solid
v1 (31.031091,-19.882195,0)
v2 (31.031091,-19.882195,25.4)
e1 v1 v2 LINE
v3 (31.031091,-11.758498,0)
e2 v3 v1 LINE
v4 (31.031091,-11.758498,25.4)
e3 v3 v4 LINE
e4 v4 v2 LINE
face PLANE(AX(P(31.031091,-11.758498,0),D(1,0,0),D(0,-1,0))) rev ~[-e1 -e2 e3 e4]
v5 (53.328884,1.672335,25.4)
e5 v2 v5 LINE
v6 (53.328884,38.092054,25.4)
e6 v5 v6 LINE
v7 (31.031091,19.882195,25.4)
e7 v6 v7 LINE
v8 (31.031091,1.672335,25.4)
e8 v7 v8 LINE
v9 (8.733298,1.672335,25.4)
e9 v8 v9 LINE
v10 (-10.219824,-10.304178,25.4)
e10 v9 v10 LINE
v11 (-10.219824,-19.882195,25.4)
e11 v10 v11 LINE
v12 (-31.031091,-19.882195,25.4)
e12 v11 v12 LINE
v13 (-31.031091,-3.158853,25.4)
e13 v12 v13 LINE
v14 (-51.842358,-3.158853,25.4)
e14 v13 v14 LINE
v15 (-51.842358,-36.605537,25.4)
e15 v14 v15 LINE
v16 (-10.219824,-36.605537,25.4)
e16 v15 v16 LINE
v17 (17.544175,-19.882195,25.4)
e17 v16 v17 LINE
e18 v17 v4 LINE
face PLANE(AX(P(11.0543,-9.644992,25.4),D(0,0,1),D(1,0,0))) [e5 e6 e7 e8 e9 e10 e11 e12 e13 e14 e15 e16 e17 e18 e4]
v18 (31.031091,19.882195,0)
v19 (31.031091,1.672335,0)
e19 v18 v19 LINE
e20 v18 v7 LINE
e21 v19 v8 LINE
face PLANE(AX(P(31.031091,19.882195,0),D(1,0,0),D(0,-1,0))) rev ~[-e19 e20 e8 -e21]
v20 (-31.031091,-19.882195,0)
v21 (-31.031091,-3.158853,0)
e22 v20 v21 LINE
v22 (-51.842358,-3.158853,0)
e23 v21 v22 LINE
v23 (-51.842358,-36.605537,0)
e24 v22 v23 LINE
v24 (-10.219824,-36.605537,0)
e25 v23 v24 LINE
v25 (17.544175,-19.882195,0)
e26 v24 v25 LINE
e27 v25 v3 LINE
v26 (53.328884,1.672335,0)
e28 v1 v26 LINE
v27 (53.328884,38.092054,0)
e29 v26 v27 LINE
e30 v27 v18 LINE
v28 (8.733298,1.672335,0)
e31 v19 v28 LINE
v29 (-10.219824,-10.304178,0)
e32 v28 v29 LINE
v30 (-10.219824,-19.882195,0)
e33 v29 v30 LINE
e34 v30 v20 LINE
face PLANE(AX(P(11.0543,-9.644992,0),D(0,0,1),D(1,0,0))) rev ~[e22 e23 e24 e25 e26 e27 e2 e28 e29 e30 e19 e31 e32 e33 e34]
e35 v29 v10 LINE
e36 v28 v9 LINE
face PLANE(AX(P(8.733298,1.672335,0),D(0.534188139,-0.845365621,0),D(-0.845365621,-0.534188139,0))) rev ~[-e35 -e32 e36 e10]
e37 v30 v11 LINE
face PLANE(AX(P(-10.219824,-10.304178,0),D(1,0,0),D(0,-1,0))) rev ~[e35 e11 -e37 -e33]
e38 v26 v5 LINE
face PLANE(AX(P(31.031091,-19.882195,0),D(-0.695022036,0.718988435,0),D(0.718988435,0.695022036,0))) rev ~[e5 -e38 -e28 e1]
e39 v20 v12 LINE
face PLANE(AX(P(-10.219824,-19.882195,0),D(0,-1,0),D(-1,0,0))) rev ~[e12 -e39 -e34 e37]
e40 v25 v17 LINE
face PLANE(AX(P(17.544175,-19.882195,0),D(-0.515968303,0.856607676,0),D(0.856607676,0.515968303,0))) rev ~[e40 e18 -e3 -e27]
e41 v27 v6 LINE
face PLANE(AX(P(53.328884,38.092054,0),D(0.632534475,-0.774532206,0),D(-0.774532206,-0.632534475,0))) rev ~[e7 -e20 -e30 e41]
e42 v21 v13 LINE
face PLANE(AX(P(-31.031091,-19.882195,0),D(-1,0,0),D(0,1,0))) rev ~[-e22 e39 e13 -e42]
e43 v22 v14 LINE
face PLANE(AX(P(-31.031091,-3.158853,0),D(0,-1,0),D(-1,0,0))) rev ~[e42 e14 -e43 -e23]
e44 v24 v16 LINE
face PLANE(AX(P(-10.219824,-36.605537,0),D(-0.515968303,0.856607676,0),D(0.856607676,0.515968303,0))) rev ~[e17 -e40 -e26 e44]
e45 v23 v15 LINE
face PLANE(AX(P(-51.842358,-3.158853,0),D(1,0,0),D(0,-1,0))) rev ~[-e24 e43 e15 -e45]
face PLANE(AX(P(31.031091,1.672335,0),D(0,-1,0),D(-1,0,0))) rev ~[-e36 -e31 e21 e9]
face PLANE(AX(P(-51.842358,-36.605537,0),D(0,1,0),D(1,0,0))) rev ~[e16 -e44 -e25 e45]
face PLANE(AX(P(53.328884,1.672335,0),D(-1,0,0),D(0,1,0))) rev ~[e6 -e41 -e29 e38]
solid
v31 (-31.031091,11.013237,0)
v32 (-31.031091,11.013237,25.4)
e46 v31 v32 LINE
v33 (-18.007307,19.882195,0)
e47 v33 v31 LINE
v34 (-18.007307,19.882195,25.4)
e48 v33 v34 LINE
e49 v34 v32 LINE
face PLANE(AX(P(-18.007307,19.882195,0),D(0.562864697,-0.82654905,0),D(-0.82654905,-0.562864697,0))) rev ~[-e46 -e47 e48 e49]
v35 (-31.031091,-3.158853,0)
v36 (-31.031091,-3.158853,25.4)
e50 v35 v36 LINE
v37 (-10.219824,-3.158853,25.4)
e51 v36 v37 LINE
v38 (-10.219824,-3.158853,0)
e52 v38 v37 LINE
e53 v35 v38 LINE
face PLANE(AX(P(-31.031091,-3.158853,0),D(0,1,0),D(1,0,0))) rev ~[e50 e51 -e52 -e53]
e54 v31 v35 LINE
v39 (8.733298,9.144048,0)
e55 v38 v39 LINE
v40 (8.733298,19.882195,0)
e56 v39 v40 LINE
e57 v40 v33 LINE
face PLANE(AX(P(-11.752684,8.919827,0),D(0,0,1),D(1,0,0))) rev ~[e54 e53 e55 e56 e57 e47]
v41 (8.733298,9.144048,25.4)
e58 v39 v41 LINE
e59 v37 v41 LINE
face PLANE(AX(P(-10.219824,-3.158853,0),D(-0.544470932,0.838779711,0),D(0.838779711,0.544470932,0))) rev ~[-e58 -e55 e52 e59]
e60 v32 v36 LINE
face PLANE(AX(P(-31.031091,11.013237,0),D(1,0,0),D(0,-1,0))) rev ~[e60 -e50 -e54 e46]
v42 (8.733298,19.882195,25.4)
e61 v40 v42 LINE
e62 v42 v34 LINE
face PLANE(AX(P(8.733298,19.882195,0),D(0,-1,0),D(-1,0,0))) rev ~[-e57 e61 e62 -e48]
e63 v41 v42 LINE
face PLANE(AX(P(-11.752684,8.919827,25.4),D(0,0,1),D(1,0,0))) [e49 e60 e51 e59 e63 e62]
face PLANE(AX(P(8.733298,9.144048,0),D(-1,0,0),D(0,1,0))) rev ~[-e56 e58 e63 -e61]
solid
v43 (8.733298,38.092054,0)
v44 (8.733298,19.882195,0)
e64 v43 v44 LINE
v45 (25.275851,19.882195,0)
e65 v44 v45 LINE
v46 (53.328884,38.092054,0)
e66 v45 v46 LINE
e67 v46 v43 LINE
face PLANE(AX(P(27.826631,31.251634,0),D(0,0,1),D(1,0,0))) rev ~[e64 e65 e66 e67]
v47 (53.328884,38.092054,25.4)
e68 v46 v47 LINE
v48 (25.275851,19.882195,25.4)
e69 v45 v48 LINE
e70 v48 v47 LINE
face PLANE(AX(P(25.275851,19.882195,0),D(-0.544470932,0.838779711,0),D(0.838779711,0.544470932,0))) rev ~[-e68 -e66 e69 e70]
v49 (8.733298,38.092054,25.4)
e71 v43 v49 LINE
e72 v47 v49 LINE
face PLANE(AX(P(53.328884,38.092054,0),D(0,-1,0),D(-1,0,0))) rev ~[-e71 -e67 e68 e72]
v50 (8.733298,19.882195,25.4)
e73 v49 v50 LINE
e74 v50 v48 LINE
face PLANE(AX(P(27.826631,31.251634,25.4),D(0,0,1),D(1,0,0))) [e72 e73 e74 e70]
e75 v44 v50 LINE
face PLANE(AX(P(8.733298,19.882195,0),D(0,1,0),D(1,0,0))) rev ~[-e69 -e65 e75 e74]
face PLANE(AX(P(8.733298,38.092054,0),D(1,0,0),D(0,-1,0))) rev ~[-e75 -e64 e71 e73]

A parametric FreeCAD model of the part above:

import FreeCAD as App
import Part
import Sketcher
from FreeCAD import Vector
Q = App.Units.Quantity

doc = App.newDocument("Part")
body = doc.addObject("PartDesign::Body", "Body")

# Sketch on XY plane
sketch1 = doc.addObject("Sketcher::SketchObject", "Sketch")
body.addObject(sketch1)
sketch1.AttachmentSupport = (doc.XY_Plane, [""])
sketch1.MapMode = "FlatFace"
sketch1.addGeometry([
    Part.LineSegment(Vector(9, 20, 0), Vector(-18, 20, 0)),  # 0
    Part.LineSegment(Vector(-18, 20, 0), Vector(-31, 11, 0)),  # 1
    Part.LineSegment(Vector(-31, 11, 0), Vector(-31, -3, 0)),  # 2
    Part.LineSegment(Vector(-31, -3, 0), Vector(-10, -3, 0)),  # 3
    Part.LineSegment(Vector(-10, -3, 0), Vector(9, 9, 0)),  # 4
    Part.LineSegment(Vector(9, 9, 0), Vector(9, 20, 0)),  # 5
], False)
sketch1.addConstraint([
    Sketcher.Constraint("Coincident", 0, 2, 1, 1),
    Sketcher.Constraint("Coincident", 1, 2, 2, 1),
    Sketcher.Constraint("Coincident", 2, 2, 3, 1),
    Sketcher.Constraint("Coincident", 3, 2, 4, 1),
    Sketcher.Constraint("Coincident", 4, 2, 5, 1),
    Sketcher.Constraint("Coincident", 5, 2, 0, 1),
    Sketcher.Constraint("Horizontal", 0),
    Sketcher.Constraint("Vertical", 2),
    Sketcher.Constraint("Horizontal", 3),
    Sketcher.Constraint("Vertical", 5),
    Sketcher.Constraint("DistanceY", 2, 2, 2, 1, 14.17209),
    Sketcher.Constraint("DistanceY", 3, 2, 4, 2, 12.302901),
    Sketcher.Constraint("Distance", 1, 15.756819),
    Sketcher.Constraint("DistanceX", 0, 2, 0, 1, 26.740605),
    Sketcher.Constraint("DistanceX", 3, 1, 3, 2, 20.811267),
    Sketcher.Constraint("DistanceY", 5, 1, 5, 2, 10.738147),
    Sketcher.Constraint("DistanceX", 1, 2, -1, 1, 31.031091),
    Sketcher.Constraint("DistanceY", -1, 1, 4, 2, 9.144048),
])
pad1 = doc.addObject("PartDesign::Pad", "Pad")
body.addObject(pad1)
pad1.Profile = sketch1
pad1.Length = Q("1 in")
body2 = doc.addObject("PartDesign::Body", "Body001")

# Sketch on XY plane
sketch2 = doc.addObject("Sketcher::SketchObject", "Sketch001")
body2.addObject(sketch2)
sketch2.AttachmentSupport = (doc.getObject("XY_Plane001"), [""])
sketch2.MapMode = "FlatFace"
sketch2.addGeometry([
    Part.LineSegment(Vector(31, 2, 0), Vector(9, 2, 0)),  # 0
    Part.LineSegment(Vector(9, 2, 0), Vector(-10, -10, 0)),  # 1
    Part.LineSegment(Vector(-10, -10, 0), Vector(-10, -20, 0)),  # 2
    Part.LineSegment(Vector(-10, -20, 0), Vector(-31, -20, 0)),  # 3
    Part.LineSegment(Vector(-31, -20, 0), Vector(-31, -3, 0)),  # 4
    Part.LineSegment(Vector(-31, -3, 0), Vector(-52, -3, 0)),  # 5
    Part.LineSegment(Vector(-52, -3, 0), Vector(-52, -37, 0)),  # 6
    Part.LineSegment(Vector(-52, -37, 0), Vector(-10, -37, 0)),  # 7
    Part.LineSegment(Vector(-10, -37, 0), Vector(18, -20, 0)),  # 8
    Part.LineSegment(Vector(18, -20, 0), Vector(31, -12, 0)),  # 9
    Part.LineSegment(Vector(31, -12, 0), Vector(31, -20, 0)),  # 10
    Part.LineSegment(Vector(31, -20, 0), Vector(53, 2, 0)),  # 11
    Part.LineSegment(Vector(53, 2, 0), Vector(53, 38, 0)),  # 12
    Part.LineSegment(Vector(53, 38, 0), Vector(31, 20, 0)),  # 13
    Part.LineSegment(Vector(31, 20, 0), Vector(31, 2, 0)),  # 14
], False)
sketch2.addConstraint([
    Sketcher.Constraint("Coincident", 0, 2, 1, 1),
    Sketcher.Constraint("Coincident", 1, 2, 2, 1),
    Sketcher.Constraint("Coincident", 2, 2, 3, 1),
    Sketcher.Constraint("Coincident", 3, 2, 4, 1),
    Sketcher.Constraint("Coincident", 4, 2, 5, 1),
    Sketcher.Constraint("Coincident", 5, 2, 6, 1),
    Sketcher.Constraint("Coincident", 6, 2, 7, 1),
    Sketcher.Constraint("Coincident", 7, 2, 8, 1),
    Sketcher.Constraint("Coincident", 8, 2, 9, 1),
    Sketcher.Constraint("Coincident", 9, 2, 10, 1),
    Sketcher.Constraint("Coincident", 10, 2, 11, 1),
    Sketcher.Constraint("Coincident", 11, 2, 12, 1),
    Sketcher.Constraint("Coincident", 12, 2, 13, 1),
    Sketcher.Constraint("Coincident", 13, 2, 14, 1),
    Sketcher.Constraint("Coincident", 14, 2, 0, 1),
    Sketcher.Constraint("Horizontal", 0),
    Sketcher.Constraint("Vertical", 2),
    Sketcher.Constraint("Horizontal", 3),
    Sketcher.Constraint("Vertical", 4),
    Sketcher.Constraint("Horizontal", 5),
    Sketcher.Constraint("Vertical", 6),
    Sketcher.Constraint("Horizontal", 7),
    Sketcher.Constraint("Vertical", 10),
    Sketcher.Constraint("Vertical", 12),
    Sketcher.Constraint("Vertical", 14),
    Sketcher.Constraint("Symmetric", 3, 2, 13, 2, -1, 1),
    Sketcher.Constraint("Symmetric", 3, 2, 10, 2, -2),
    Sketcher.Constraint("Parallel", 8, 9),
    Sketcher.Constraint("Horizontal", 3, 2, 8, 2),
    Sketcher.Constraint("Horizontal", 0, 2, 11, 2),
    Sketcher.Constraint("Vertical", 2, 2, 7, 2),
    Sketcher.Constraint("Equal", 3, 5),
    Sketcher.Constraint("DistanceY", 12, 1, 12, 2, 36.419719),
    Sketcher.Constraint("DistanceY", 14, 2, 14, 1, 18.20986),
    Sketcher.Constraint("DistanceX", 2, 2, 8, 2, 27.763998),
    Sketcher.Constraint("Distance", 1, 22.420028),
    Sketcher.Constraint("Distance", 8, 32.411569),
    Sketcher.Constraint("Distance", 11, 31.012728),
    Sketcher.Constraint("DistanceX", 0, 2, 0, 1, 22.297793),
    Sketcher.Constraint("DistanceX", 3, 2, 3, 1, 20.811267),
    Sketcher.Constraint("DistanceY", 2, 2, 2, 1, 9.578016),
    Sketcher.Constraint("DistanceY", 4, 1, 4, 2, 16.723342),
    Sketcher.Constraint("DistanceY", 10, 2, 10, 1, 8.123697),
])
pad2 = doc.addObject("PartDesign::Pad", "Pad001")
body2.addObject(pad2)
pad2.Profile = sketch2
pad2.Length = Q("1 in")
body3 = doc.addObject("PartDesign::Body", "Body002")

# Sketch on XY plane
sketch3 = doc.addObject("Sketcher::SketchObject", "Sketch002")
body3.addObject(sketch3)
sketch3.AttachmentSupport = (doc.getObject("XY_Plane002"), [""])
sketch3.MapMode = "FlatFace"
sketch3.addGeometry([
    Part.LineSegment(Vector(53, 38, 0), Vector(9, 38, 0)),
    Part.LineSegment(Vector(9, 38, 0), Vector(9, 20, 0)),
    Part.LineSegment(Vector(9, 20, 0), Vector(25, 20, 0)),
    Part.LineSegment(Vector(25, 20, 0), Vector(53, 38, 0)),
], False)
sketch3.addConstraint([
    Sketcher.Constraint("Coincident", 0, 2, 1, 1),
    Sketcher.Constraint("Coincident", 1, 2, 2, 1),
    Sketcher.Constraint("Coincident", 2, 2, 3, 1),
    Sketcher.Constraint("Coincident", 3, 2, 0, 1),
    Sketcher.Constraint("Horizontal", 0),
    Sketcher.Constraint("Vertical", 1),
    Sketcher.Constraint("Horizontal", 2),
    Sketcher.Constraint("DistanceY", 1, 2, 1, 1, 18.20986),
    Sketcher.Constraint("DistanceX", 0, 2, 0, 1, 44.595586),
    Sketcher.Constraint("DistanceX", 2, 1, 2, 2, 16.542553),
    Sketcher.Constraint("DistanceX", -1, 1, 2, 2, 25.275851),
    Sketcher.Constraint("DistanceY", -1, 1, 0, 2, 38.092054),
])
pad3 = doc.addObject("PartDesign::Pad", "Pad002")
body3.addObject(pad3)
pad3.Profile = sketch3
pad3.Length = Q("1 in")

doc.recompute()
